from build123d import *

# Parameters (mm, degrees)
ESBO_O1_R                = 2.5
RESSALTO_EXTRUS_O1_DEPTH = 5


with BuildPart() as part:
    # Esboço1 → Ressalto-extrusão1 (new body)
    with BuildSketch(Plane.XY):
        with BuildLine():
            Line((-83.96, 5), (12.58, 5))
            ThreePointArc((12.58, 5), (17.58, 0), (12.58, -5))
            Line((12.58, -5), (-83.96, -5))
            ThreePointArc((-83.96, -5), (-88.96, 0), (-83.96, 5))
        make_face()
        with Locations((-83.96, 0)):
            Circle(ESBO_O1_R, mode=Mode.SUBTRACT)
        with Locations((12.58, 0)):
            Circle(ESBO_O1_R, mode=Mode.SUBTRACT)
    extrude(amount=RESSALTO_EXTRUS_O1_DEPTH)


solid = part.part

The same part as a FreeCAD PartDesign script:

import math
import FreeCAD as App
import Part
import Sketcher

V = App.Vector

doc = App.newDocument("Part")
body = doc.addObject("PartDesign::Body", "Body")

# Sketch on XY plane
sketch1 = body.newObject("Sketcher::SketchObject", "Sketch")
sketch1.AttachmentSupport = (doc.getObject("XY_Plane"), [""])
sketch1.MapMode = "FlatFace"
sketch1.addGeometry(Part.LineSegment(V(12.6, 5, 0), V(-84, 5, 0)), False)
sketch1.addGeometry(Part.ArcOfCircle(Part.Circle(V(-84, 0, 0), V(0, 0, 1), 5), math.radians(90), math.radians(270)), False)
sketch1.addGeometry(Part.LineSegment(V(-84, -5, 0), V(12.6, -5, 0)), False)
sketch1.addGeometry(Part.ArcOfCircle(Part.Circle(V(12.6, 0, 0), V(0, 0, 1), 5), math.radians(-90), math.radians(90)), False)
sketch1.addGeometry(Part.Circle(V(12.6, 0, 0), V(0, 0, 1), 2.5), False)
sketch1.addGeometry(Part.Circle(V(-84, 0, 0), V(0, 0, 1), 2.5), False)
sketch1.addConstraint(Sketcher.Constraint("Tangent", 0, 2, 1, 1))
sketch1.addConstraint(Sketcher.Constraint("Tangent", 1, 2, 2, 1))
sketch1.addConstraint(Sketcher.Constraint("Tangent", 2, 2, 3, 1))
sketch1.addConstraint(Sketcher.Constraint("Tangent", 3, 2, 0, 1))
sketch1.addConstraint(Sketcher.Constraint("Horizontal", 0))
sketch1.addConstraint(Sketcher.Constraint("Horizontal", 2))
sketch1.addConstraint(Sketcher.Constraint("Coincident", 4, 3, 3, 3))
sketch1.addConstraint(Sketcher.Constraint("Coincident", 5, 3, 1, 3))
sketch1.addConstraint(Sketcher.Constraint("Equal", 4, 5))
sketch1.addConstraint(Sketcher.Constraint("PointOnObject", 1, 3, -1))
sketch1.addConstraint(Sketcher.Constraint("Diameter", 4, 5.0))
sketch1.addConstraint(Sketcher.Constraint("Radius", 1, 5.0))
sketch1.addConstraint(Sketcher.Constraint("DistanceX", 0, 2, 0, 1, 96.54))
sketch1.addConstraint(Sketcher.Constraint("DistanceX", 1, 3, -1, 1, 83.96))
pad1 = body.newObject("PartDesign::Pad", "Pad")
pad1.Profile = sketch1
pad1.Length = 5

doc.recompute()
